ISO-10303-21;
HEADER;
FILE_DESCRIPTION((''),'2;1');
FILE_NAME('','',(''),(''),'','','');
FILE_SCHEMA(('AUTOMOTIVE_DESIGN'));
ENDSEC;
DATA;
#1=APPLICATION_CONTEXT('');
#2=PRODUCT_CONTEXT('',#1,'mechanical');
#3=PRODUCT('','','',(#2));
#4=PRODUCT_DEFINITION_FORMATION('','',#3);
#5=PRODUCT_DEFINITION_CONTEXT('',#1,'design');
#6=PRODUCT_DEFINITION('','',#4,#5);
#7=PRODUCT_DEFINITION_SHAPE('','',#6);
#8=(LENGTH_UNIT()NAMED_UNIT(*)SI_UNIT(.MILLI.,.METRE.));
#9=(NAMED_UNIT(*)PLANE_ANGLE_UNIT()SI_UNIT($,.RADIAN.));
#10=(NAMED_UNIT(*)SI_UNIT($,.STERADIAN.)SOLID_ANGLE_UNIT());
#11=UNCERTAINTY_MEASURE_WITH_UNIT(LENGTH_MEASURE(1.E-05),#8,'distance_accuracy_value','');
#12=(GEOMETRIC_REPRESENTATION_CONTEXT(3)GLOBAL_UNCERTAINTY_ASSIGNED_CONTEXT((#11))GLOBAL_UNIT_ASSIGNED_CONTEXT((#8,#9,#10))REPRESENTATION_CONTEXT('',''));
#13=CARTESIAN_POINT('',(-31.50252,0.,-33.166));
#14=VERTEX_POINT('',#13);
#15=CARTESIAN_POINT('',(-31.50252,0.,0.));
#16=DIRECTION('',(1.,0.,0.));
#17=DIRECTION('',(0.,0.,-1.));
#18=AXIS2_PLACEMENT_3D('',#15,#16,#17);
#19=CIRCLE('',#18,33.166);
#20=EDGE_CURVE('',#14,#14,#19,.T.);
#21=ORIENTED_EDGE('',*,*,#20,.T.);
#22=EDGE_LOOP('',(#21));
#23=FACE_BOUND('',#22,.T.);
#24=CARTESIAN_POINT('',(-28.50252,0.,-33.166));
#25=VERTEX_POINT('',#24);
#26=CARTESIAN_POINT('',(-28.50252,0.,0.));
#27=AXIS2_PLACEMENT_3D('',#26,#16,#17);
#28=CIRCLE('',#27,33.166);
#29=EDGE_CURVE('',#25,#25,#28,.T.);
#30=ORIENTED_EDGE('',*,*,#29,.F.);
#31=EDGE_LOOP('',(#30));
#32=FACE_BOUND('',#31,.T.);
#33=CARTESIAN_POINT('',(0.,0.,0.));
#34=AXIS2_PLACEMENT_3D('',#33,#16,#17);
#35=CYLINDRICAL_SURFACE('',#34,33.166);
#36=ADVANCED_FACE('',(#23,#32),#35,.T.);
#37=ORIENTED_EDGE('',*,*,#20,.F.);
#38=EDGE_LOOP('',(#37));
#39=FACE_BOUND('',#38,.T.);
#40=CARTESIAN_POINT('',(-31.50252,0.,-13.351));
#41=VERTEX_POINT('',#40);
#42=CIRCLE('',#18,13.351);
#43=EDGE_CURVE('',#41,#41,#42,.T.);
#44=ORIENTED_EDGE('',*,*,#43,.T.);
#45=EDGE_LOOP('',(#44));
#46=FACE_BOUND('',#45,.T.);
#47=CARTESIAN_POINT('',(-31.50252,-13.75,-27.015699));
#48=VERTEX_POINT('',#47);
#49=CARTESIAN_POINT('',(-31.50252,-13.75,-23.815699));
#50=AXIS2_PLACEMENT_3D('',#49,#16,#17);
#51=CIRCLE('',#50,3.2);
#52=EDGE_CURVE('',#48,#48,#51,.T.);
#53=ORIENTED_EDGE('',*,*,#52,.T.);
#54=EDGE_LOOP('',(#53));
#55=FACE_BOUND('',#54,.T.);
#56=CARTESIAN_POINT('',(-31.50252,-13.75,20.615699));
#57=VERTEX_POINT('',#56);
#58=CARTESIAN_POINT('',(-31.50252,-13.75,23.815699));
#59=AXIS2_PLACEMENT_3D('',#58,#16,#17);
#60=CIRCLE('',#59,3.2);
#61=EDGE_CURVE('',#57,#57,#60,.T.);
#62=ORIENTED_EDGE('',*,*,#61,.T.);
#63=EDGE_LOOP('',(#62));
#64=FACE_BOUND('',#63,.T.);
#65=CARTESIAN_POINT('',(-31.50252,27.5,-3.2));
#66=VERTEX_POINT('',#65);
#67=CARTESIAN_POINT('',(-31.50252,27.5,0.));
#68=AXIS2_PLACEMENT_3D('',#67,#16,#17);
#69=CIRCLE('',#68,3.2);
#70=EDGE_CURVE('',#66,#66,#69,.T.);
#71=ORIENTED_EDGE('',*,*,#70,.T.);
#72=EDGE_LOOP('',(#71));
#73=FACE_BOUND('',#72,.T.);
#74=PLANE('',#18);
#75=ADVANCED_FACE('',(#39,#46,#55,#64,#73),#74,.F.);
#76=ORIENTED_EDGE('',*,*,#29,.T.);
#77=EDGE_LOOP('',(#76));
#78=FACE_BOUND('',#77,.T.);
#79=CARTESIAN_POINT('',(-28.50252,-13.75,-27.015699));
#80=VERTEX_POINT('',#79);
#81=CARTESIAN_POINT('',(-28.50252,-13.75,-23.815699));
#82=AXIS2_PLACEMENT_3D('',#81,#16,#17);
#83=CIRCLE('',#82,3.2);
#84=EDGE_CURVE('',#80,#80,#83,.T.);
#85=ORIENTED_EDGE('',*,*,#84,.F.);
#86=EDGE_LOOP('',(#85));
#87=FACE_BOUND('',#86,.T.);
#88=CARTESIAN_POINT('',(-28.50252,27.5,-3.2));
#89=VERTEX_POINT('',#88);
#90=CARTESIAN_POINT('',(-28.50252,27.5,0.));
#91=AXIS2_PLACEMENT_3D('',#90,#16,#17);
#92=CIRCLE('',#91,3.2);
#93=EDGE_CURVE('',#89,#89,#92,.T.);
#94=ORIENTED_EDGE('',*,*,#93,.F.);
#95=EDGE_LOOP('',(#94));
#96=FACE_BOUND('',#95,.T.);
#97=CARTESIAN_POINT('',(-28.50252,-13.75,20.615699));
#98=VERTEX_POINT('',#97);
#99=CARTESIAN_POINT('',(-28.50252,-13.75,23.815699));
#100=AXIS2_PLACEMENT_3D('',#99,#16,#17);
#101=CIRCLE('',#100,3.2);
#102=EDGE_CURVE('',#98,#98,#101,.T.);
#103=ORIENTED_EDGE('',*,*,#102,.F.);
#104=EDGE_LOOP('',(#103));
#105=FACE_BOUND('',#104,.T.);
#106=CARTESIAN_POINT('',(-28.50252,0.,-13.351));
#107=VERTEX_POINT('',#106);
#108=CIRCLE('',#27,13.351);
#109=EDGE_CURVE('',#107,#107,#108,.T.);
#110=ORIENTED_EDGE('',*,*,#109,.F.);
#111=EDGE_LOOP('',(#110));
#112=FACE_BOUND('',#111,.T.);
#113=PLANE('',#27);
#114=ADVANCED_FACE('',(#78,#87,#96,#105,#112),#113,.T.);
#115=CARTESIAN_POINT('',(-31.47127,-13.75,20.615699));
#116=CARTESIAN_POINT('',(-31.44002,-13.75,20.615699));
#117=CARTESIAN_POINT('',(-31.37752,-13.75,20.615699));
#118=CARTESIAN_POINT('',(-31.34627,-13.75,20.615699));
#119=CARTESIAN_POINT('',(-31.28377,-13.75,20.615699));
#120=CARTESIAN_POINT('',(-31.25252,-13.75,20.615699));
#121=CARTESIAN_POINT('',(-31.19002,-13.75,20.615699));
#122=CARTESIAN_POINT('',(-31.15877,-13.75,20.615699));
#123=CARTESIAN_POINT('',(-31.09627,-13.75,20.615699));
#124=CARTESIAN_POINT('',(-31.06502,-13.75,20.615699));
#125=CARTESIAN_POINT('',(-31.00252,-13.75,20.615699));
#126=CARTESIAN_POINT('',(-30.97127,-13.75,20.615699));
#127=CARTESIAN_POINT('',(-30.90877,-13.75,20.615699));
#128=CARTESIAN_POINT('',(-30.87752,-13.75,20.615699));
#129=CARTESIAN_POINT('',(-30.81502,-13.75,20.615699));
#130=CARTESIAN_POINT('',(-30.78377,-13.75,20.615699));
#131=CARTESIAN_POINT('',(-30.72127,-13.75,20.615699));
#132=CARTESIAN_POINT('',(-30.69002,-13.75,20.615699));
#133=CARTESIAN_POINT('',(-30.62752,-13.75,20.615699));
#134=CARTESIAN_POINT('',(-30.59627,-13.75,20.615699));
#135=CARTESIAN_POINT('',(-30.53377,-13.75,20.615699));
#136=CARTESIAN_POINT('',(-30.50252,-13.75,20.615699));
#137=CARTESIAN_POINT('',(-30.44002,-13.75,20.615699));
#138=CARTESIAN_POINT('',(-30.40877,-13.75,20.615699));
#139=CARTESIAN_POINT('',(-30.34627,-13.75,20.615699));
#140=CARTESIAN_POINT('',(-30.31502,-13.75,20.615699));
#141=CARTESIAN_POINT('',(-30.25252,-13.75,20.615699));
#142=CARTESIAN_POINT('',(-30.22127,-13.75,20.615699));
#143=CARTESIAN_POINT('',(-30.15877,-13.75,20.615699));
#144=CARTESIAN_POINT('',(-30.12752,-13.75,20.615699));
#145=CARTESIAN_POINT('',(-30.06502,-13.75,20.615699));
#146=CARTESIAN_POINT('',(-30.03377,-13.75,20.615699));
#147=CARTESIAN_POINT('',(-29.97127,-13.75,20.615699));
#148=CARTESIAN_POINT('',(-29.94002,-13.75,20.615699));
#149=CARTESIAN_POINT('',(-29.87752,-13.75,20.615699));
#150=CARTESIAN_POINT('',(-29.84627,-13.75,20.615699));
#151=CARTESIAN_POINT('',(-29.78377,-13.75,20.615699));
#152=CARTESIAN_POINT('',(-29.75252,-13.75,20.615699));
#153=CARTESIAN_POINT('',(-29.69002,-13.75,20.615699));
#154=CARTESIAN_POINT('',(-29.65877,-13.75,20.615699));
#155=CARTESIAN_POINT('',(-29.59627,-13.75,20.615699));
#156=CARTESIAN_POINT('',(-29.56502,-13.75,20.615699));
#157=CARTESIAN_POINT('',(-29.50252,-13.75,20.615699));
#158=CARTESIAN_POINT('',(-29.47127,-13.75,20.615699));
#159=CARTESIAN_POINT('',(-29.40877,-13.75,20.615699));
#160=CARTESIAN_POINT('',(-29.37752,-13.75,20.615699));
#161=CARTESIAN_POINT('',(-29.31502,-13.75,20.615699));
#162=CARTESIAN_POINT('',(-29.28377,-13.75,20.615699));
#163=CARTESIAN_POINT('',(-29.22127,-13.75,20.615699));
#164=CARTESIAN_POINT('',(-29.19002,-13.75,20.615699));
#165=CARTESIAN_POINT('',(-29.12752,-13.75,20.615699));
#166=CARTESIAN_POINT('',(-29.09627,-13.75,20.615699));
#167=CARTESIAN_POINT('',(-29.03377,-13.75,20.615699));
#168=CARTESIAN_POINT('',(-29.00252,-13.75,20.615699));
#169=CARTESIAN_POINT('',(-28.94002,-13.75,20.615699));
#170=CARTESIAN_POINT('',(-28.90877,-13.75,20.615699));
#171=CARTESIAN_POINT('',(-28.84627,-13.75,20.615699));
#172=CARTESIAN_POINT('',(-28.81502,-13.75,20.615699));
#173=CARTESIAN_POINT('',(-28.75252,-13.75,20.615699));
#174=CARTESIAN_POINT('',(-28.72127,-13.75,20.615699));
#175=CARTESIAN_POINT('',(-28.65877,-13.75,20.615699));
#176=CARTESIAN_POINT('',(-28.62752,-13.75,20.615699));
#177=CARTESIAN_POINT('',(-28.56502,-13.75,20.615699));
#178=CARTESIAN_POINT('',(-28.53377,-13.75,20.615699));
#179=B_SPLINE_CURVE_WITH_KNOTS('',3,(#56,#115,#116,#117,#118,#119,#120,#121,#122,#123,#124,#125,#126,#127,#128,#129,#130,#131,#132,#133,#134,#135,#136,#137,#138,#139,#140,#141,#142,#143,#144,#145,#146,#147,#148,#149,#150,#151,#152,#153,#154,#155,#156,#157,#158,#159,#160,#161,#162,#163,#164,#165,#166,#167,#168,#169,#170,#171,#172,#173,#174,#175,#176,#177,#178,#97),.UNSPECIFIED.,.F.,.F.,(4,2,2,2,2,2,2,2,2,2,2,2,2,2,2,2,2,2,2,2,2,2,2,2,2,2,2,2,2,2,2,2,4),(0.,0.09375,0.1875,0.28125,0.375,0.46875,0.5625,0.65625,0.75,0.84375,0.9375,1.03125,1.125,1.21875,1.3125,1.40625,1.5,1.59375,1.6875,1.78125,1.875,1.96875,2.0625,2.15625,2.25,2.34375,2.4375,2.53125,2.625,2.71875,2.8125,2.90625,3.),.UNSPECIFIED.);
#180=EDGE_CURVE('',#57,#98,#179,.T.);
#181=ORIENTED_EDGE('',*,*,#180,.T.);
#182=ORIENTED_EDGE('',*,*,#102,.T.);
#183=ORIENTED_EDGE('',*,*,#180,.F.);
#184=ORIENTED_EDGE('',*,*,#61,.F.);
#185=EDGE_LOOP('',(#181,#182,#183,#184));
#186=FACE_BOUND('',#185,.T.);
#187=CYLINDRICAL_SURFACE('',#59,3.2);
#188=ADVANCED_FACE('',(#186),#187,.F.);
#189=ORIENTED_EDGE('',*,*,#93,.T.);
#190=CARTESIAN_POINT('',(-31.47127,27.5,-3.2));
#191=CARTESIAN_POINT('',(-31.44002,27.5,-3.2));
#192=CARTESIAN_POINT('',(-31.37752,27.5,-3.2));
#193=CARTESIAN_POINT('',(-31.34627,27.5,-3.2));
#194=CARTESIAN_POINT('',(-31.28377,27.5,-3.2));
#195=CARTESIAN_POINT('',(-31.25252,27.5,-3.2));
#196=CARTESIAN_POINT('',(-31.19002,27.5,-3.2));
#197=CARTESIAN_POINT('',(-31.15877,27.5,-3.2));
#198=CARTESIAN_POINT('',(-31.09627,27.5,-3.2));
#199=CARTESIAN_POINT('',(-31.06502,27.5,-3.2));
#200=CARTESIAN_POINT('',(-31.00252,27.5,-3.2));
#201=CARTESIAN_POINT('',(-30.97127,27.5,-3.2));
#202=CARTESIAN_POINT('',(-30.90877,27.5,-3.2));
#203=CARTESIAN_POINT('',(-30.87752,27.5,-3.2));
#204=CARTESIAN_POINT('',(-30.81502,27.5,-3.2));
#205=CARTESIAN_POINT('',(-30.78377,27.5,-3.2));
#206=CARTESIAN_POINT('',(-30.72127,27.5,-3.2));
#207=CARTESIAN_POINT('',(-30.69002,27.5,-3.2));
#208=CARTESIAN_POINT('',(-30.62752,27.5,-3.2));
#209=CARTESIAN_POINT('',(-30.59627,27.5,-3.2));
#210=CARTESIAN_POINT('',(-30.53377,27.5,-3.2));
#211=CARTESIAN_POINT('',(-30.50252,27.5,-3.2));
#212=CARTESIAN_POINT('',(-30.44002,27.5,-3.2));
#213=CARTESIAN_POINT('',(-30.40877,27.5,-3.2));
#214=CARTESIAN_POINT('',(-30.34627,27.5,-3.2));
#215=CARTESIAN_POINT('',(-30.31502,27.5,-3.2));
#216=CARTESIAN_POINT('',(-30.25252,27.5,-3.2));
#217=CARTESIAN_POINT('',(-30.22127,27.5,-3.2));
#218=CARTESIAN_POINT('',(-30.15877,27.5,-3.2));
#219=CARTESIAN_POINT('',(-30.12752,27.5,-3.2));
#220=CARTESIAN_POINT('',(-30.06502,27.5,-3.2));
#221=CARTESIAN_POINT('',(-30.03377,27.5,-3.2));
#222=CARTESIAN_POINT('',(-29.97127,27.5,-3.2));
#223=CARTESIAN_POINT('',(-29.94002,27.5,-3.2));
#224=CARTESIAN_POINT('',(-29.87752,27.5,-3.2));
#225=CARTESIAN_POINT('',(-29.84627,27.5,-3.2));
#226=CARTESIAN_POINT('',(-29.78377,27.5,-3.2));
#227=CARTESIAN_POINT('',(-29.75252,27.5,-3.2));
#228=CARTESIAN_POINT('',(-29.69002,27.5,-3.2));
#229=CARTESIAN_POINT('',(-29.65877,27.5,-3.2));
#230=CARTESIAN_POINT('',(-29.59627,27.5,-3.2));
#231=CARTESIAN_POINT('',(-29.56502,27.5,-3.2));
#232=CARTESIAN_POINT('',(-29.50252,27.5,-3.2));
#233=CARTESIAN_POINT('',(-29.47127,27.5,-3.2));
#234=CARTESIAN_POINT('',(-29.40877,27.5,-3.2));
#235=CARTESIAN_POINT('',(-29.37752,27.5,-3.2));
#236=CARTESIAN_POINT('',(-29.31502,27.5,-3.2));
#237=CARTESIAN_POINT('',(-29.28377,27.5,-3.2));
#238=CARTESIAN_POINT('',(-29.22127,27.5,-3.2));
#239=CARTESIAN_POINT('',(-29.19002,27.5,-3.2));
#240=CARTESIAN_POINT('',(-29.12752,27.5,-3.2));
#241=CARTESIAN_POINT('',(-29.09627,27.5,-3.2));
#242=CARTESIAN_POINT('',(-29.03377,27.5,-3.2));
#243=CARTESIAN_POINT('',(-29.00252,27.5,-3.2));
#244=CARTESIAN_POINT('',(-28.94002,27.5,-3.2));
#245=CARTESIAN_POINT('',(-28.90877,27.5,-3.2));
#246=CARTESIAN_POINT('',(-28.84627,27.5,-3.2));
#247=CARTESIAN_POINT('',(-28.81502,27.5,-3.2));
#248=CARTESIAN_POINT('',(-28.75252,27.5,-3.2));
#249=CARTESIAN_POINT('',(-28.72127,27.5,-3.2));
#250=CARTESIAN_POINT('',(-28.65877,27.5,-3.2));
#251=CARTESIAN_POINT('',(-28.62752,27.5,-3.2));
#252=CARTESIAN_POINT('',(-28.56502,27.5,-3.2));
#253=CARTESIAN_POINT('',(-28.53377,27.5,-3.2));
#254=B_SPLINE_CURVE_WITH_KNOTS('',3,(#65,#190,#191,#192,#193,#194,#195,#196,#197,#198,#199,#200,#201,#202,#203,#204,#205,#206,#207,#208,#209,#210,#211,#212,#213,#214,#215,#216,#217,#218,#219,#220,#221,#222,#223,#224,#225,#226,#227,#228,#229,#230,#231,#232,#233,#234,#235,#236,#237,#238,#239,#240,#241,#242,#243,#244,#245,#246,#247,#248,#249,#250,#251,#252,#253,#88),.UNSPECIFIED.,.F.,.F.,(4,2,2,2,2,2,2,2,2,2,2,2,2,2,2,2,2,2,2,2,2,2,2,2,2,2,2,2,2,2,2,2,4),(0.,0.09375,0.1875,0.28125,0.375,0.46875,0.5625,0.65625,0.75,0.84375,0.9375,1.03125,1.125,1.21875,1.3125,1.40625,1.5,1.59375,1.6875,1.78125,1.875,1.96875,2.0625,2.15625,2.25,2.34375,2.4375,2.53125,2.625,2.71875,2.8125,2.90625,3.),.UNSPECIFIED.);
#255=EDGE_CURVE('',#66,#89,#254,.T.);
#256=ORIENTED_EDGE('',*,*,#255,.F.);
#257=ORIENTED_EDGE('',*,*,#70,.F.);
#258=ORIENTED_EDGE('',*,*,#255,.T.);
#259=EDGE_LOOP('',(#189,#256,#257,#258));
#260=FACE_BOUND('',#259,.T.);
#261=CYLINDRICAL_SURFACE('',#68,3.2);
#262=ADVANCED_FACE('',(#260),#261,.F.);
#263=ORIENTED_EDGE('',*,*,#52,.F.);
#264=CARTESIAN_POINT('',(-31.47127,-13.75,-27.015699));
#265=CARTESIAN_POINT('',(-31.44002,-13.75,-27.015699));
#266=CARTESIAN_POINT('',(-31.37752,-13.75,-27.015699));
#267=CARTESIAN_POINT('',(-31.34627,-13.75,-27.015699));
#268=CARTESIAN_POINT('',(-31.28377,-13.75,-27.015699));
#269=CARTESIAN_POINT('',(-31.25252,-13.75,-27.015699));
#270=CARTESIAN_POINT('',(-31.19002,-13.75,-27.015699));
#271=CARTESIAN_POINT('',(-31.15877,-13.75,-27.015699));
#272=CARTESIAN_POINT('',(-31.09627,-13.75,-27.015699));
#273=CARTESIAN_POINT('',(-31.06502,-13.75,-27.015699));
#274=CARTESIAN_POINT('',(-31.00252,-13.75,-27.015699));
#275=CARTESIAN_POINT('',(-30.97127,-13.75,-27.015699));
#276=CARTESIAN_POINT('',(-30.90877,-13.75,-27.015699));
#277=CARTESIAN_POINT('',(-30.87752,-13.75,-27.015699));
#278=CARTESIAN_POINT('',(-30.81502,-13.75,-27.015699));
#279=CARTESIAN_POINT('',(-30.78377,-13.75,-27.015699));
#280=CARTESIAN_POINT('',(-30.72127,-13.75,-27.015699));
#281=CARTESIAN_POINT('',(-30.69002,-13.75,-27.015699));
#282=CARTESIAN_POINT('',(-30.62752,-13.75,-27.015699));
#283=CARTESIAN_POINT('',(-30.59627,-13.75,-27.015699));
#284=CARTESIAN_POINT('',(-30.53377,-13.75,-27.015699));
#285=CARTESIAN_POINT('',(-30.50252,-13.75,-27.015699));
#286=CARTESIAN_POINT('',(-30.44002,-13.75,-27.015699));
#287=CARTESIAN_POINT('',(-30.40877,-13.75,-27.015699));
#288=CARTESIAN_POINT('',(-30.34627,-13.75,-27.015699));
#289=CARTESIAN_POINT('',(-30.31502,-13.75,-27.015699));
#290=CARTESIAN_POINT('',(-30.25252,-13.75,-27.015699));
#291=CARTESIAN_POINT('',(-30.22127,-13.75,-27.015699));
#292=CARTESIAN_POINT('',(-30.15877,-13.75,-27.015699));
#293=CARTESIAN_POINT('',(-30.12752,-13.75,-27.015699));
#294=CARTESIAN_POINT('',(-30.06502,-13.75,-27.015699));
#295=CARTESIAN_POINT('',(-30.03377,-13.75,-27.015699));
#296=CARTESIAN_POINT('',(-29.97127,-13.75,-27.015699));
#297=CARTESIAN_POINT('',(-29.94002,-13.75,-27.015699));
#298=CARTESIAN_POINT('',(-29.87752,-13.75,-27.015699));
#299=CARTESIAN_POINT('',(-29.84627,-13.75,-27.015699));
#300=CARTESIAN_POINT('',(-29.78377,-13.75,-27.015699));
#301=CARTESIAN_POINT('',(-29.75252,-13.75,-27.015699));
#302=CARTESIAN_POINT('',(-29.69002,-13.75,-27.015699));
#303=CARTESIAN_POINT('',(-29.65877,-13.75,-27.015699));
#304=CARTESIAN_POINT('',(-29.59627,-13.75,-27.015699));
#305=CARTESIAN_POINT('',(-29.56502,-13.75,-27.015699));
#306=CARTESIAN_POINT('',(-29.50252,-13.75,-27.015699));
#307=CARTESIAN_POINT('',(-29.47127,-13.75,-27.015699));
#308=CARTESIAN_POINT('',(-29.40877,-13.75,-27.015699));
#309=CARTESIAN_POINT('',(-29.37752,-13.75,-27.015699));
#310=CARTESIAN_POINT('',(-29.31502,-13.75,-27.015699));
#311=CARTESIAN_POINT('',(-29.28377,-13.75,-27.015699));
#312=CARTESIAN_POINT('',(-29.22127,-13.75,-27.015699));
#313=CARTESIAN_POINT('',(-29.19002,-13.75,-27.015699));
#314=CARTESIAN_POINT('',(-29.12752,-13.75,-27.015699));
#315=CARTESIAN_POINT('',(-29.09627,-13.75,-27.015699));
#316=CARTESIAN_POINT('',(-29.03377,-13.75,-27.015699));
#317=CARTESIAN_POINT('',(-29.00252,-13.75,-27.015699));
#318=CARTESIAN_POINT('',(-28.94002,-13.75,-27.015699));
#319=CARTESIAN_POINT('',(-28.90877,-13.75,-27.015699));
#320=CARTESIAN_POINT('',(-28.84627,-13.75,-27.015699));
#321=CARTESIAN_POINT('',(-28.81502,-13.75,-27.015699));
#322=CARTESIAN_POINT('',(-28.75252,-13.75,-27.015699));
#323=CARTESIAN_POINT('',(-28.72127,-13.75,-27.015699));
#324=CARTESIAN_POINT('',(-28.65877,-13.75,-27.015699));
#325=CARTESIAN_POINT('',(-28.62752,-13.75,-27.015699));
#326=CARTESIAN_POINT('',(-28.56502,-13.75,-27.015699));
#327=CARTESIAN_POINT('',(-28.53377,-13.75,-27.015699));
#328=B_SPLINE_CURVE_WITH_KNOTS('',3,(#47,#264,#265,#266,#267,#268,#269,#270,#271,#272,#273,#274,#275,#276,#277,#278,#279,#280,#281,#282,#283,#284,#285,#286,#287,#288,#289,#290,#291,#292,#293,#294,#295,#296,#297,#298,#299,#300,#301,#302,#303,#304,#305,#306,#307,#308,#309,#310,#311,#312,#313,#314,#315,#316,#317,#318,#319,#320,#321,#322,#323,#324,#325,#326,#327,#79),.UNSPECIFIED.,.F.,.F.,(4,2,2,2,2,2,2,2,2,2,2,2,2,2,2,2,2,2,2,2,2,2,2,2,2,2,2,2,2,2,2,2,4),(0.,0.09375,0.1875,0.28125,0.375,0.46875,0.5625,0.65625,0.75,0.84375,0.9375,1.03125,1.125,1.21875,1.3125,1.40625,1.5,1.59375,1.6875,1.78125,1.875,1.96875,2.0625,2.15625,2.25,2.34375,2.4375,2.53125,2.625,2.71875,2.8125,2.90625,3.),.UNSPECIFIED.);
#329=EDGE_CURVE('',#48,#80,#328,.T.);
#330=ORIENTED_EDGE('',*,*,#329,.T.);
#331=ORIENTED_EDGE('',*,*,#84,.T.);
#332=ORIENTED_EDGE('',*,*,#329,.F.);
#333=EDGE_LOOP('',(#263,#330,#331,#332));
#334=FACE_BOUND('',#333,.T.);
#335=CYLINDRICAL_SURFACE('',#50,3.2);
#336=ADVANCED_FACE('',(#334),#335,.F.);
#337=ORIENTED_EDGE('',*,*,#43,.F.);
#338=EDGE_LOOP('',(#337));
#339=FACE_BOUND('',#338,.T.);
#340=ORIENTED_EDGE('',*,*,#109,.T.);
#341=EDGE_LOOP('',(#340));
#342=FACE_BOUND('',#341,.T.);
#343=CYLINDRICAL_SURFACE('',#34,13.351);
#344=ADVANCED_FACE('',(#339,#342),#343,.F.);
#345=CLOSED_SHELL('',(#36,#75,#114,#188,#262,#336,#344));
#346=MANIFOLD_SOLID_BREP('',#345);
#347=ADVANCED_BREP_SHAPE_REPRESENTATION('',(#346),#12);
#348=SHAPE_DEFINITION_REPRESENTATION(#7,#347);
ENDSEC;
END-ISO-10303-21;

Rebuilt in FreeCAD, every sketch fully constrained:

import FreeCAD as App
import Part
import Sketcher
from FreeCAD import Vector


def add_polygon(sketch, points):
    """Adds a closed chain of lines whose ends are joined by coincident constraints."""
    first, n = sketch.GeometryCount, len(points)
    for a, b in zip(points, points[1:] + points[:1]):
        sketch.addGeometry(Part.LineSegment(App.Vector(*a, 0), App.Vector(*b, 0)), False)
    for i in range(n):
        sketch.addConstraint(Sketcher.Constraint("Coincident", first + i, 2, first + (i + 1) % n, 1))

doc = App.newDocument("Part")
body = doc.addObject("PartDesign::Body", "Body")

sketch1 = body.newObject("Sketcher::SketchObject", "Sketch")
sketch1.AttachmentSupport = (doc.getObject("XY_Plane"), [""])
sketch1.MapMode = "FlatFace"
add_polygon(sketch1, [(-31.50252, 33.166), (-31.50252, 13.351), (-28.50252, 13.351), (-28.50252, 33.166)])
sketch1.addConstraint([
    Sketcher.Constraint("Vertical", 0),
    Sketcher.Constraint("Horizontal", 1),
    Sketcher.Constraint("Vertical", 2),
    Sketcher.Constraint("Horizontal", 3),
    Sketcher.Constraint("DistanceX", 1, 1, 1, 2, 3.0),
    Sketcher.Constraint("DistanceY", 0, 2, 0, 1, 19.815),
    Sketcher.Constraint("DistanceY", -1, 1, 0, 2, 13.351),
    Sketcher.Constraint("DistanceX", 0, 2, -1, 1, 31.50252),
])
revolution = body.newObject("PartDesign::Revolution", "Revolution")
revolution.Profile = sketch1
revolution.ReferenceAxis = (sketch1, ["H_Axis"])
revolution.Angle = 360

sketch2 = body.newObject("Sketcher::SketchObject", "Sketch001")
sketch2.AttachmentSupport = (doc.getObject("YZ_Plane"), [""])
sketch2.MapMode = "FlatFace"
sketch2.AttachmentOffset = App.Placement(Vector(0, 0, -28.50252), App.Rotation())
sketch2.addGeometry([
    Part.Circle(Vector(27.5, 0, 0), Vector(0, 0, 1), 3.2),
    Part.Circle(Vector(-13.75, -23.815699, 0), Vector(0, 0, 1), 3.2),
    Part.Circle(Vector(-13.75, 23.815699, 0), Vector(0, 0, 1), 3.2),
], False)
sketch2.addConstraint([
    Sketcher.Constraint("Equal", 0, 1),
    Sketcher.Constraint("Equal", 1, 2),
    Sketcher.Constraint("Symmetric", 1, 3, 2, 3, -1),
    Sketcher.Constraint("PointOnObject", 0, 3, -1),
    Sketcher.Constraint("Diameter", 0, 6.4),
    Sketcher.Constraint("DistanceX", -1, 1, 0, 3, 27.5),
    Sketcher.Constraint("DistanceX", 1, 3, -1, 1, 13.75),
    Sketcher.Constraint("DistanceY", 1, 3, -1, 1, 23.815699),
])
pocket1 = body.newObject("PartDesign::Pocket", "Pocket")
pocket1.Profile = sketch2
pocket1.Type = "ThroughAll"

doc.recompute()
